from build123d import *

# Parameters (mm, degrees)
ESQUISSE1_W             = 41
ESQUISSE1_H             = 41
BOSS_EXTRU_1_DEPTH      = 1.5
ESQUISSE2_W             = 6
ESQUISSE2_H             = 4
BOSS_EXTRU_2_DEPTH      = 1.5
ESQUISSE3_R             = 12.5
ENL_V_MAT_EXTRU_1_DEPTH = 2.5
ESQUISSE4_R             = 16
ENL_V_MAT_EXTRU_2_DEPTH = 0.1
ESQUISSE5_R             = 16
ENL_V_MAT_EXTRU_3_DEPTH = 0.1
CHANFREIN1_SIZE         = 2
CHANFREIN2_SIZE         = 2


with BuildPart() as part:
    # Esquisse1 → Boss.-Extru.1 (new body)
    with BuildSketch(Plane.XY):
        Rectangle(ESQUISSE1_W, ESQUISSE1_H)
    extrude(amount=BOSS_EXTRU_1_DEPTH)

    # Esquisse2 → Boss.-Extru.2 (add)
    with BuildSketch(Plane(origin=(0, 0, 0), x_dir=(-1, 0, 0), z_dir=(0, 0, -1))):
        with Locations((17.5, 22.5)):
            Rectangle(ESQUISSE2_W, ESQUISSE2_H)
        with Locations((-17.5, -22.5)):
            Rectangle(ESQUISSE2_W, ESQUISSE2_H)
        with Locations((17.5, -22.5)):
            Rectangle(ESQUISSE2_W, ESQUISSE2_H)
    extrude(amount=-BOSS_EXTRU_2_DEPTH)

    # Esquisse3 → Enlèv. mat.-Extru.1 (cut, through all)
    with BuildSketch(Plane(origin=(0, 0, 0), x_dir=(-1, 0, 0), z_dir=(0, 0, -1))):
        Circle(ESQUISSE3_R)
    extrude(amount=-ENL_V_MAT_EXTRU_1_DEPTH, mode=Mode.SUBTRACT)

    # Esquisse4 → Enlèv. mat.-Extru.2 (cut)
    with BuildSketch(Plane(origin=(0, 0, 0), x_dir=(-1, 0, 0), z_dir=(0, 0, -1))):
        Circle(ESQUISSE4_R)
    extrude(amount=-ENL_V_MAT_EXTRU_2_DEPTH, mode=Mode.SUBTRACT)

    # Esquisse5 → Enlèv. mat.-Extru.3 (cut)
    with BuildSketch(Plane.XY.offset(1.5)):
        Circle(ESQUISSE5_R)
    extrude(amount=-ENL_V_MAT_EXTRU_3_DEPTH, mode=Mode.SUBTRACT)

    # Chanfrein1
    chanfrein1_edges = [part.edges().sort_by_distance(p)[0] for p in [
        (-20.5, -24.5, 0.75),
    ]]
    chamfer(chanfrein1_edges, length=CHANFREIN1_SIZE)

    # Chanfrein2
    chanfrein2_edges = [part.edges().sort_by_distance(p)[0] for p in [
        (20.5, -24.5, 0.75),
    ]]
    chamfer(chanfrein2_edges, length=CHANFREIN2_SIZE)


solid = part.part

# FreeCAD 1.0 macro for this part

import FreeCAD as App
import Part
import Sketcher

V = App.Vector


def edges_at(feature, points):
    """Names of the edges that pass closest to the given points."""
    edges = feature.Shape.Edges
    near = lambda p: min(range(len(edges)), key=lambda i: edges[i].distToShape(Part.Vertex(*p))[0])
    return sorted({f"Edge{near(p) + 1}" for p in points})

doc = App.newDocument("Part")
body = doc.addObject("PartDesign::Body", "Body")

# Sketch on XY plane
sketch1 = body.newObject("Sketcher::SketchObject", "Sketch")
sketch1.AttachmentSupport = (doc.getObject("XY_Plane"), [""])
sketch1.MapMode = "FlatFace"
sketch1.addGeometry(Part.LineSegment(V(-20.5, 20.5, 0), V(-20.5, -20.5, 0)), False)
sketch1.addGeometry(Part.LineSegment(V(-20.5, -20.5, 0), V(20.5, -20.5, 0)), False)
sketch1.addGeometry(Part.LineSegment(V(20.5, -20.5, 0), V(20.5, 20.5, 0)), False)
sketch1.addGeometry(Part.LineSegment(V(20.5, 20.5, 0), V(-20.5, 20.5, 0)), False)
sketch1.addConstraint(Sketcher.Constraint("Coincident", 0, 2, 1, 1))
sketch1.addConstraint(Sketcher.Constraint("Coincident", 1, 2, 2, 1))
sketch1.addConstraint(Sketcher.Constraint("Coincident", 2, 2, 3, 1))
sketch1.addConstraint(Sketcher.Constraint("Coincident", 3, 2, 0, 1))
sketch1.addConstraint(Sketcher.Constraint("Vertical", 0))
sketch1.addConstraint(Sketcher.Constraint("Horizontal", 1))
sketch1.addConstraint(Sketcher.Constraint("Vertical", 2))
sketch1.addConstraint(Sketcher.Constraint("Horizontal", 3))
sketch1.addConstraint(Sketcher.Constraint("Symmetric", 0, 2, 2, 2, -1, 1))
sketch1.addConstraint(Sketcher.Constraint("Equal", 3, 0))
sketch1.addConstraint(Sketcher.Constraint("DistanceX", 1, 1, 1, 2, 41.0))
pad1 = body.newObject("PartDesign::Pad", "Pad")
pad1.Profile = sketch1
pad1.Length = 1.5

# Sketch on XY plane
sketch2 = body.newObject("Sketcher::SketchObject", "Sketch001")
sketch2.AttachmentSupport = (doc.getObject("XY_Plane"), [""])
sketch2.MapMode = "FlatFace"
sketch2.addGeometry(Part.LineSegment(V(-14.5, 24.5, 0), V(-14.5, 20.5, 0)), False)
sketch2.addGeometry(Part.LineSegment(V(-14.5, 20.5, 0), V(-20.5, 20.5, 0)), False)
sketch2.addGeometry(Part.LineSegment(V(-20.5, 20.5, 0), V(-20.5, 24.5, 0)), False)
sketch2.addGeometry(Part.LineSegment(V(-20.5, 24.5, 0), V(-14.5, 24.5, 0)), False)
sketch2.addGeometry(Part.LineSegment(V(20.5, -20.5, 0), V(20.5, -24.5, 0)), False)
sketch2.addGeometry(Part.LineSegment(V(20.5, -24.5, 0), V(14.5, -24.5, 0)), False)
sketch2.addGeometry(Part.LineSegment(V(14.5, -24.5, 0), V(14.5, -20.5, 0)), False)
sketch2.addGeometry(Part.LineSegment(V(14.5, -20.5, 0), V(20.5, -20.5, 0)), False)
sketch2.addGeometry(Part.LineSegment(V(-14.5, -20.5, 0), V(-14.5, -24.5, 0)), False)
sketch2.addGeometry(Part.LineSegment(V(-14.5, -24.5, 0), V(-20.5, -24.5, 0)), False)
sketch2.addGeometry(Part.LineSegment(V(-20.5, -24.5, 0), V(-20.5, -20.5, 0)), False)
sketch2.addGeometry(Part.LineSegment(V(-20.5, -20.5, 0), V(-14.5, -20.5, 0)), False)
sketch2.addConstraint(Sketcher.Constraint("Coincident", 0, 2, 1, 1))
sketch2.addConstraint(Sketcher.Constraint("Coincident", 1, 2, 2, 1))
sketch2.addConstraint(Sketcher.Constraint("Coincident", 2, 2, 3, 1))
sketch2.addConstraint(Sketcher.Constraint("Coincident", 3, 2, 0, 1))
sketch2.addConstraint(Sketcher.Constraint("Coincident", 4, 2, 5, 1))
sketch2.addConstraint(Sketcher.Constraint("Coincident", 5, 2, 6, 1))
sketch2.addConstraint(Sketcher.Constraint("Coincident", 6, 2, 7, 1))
sketch2.addConstraint(Sketcher.Constraint("Coincident", 7, 2, 4, 1))
sketch2.addConstraint(Sketcher.Constraint("Coincident", 8, 2, 9, 1))
sketch2.addConstraint(Sketcher.Constraint("Coincident", 9, 2, 10, 1))
sketch2.addConstraint(Sketcher.Constraint("Coincident", 10, 2, 11, 1))
sketch2.addConstraint(Sketcher.Constraint("Coincident", 11, 2, 8, 1))
sketch2.addConstraint(Sketcher.Constraint("Vertical", 0))
sketch2.addConstraint(Sketcher.Constraint("Horizontal", 1))
sketch2.addConstraint(Sketcher.Constraint("Vertical", 2))
sketch2.addConstraint(Sketcher.Constraint("Horizontal", 3))
sketch2.addConstraint(Sketcher.Constraint("Vertical", 4))
sketch2.addConstraint(Sketcher.Constraint("Horizontal", 5))
sketch2.addConstraint(Sketcher.Constraint("Vertical", 6))
sketch2.addConstraint(Sketcher.Constraint("Horizontal", 7))
sketch2.addConstraint(Sketcher.Constraint("Vertical", 8))
sketch2.addConstraint(Sketcher.Constraint("Horizontal", 9))
sketch2.addConstraint(Sketcher.Constraint("Vertical", 10))
sketch2.addConstraint(Sketcher.Constraint("Horizontal", 11))
sketch2.addConstraint(Sketcher.Constraint("Symmetric", 2, 2, 4, 2, -1, 1))
sketch2.addConstraint(Sketcher.Constraint("Symmetric", 0, 2, 6, 2, -1, 1))
sketch2.addConstraint(Sketcher.Constraint("Symmetric", 5, 2, 8, 2, -2))
sketch2.addConstraint(Sketcher.Constraint("Symmetric", 7, 2, 10, 2, -2))
sketch2.addConstraint(Sketcher.Constraint("DistanceX", 1, 2, 1, 1, 6.0))
sketch2.addConstraint(Sketcher.Constraint("DistanceY", 0, 2, 0, 1, 4.0))
sketch2.addConstraint(Sketcher.Constraint("DistanceX", 0, 2, 4, 2, 35.0))
sketch2.addConstraint(Sketcher.Constraint("DistanceY", 4, 2, 0, 2, 45.0))
pad2 = body.newObject("PartDesign::Pad", "Pad001")
pad2.Profile = sketch2
pad2.Length = 1.5

# Sketch on XY plane
sketch3 = body.newObject("Sketcher::SketchObject", "Sketch002")
sketch3.AttachmentSupport = (doc.getObject("XY_Plane"), [""])
sketch3.MapMode = "FlatFace"
sketch3.addGeometry(Part.Circle(V(0, 0, 0), V(0, 0, 1), 12.5), False)
sketch3.addConstraint(Sketcher.Constraint("Coincident", 0, 3, -1, 1))
sketch3.addConstraint(Sketcher.Constraint("Diameter", 0, 25.0))
pocket1 = body.newObject("PartDesign::Pocket", "Pocket")
pocket1.Profile = sketch3
pocket1.Type = "ThroughAll"
pocket1.Reversed = True

# Sketch on XY plane
sketch4 = body.newObject("Sketcher::SketchObject", "Sketch003")
sketch4.AttachmentSupport = (doc.getObject("XY_Plane"), [""])
sketch4.MapMode = "FlatFace"
sketch4.addGeometry(Part.Circle(V(0, 0, 0), V(0, 0, 1), 16), False)
sketch4.addConstraint(Sketcher.Constraint("Coincident", 0, 3, -1, 1))
sketch4.addConstraint(Sketcher.Constraint("Diameter", 0, 32.0))
pocket2 = body.newObject("PartDesign::Pocket", "Pocket001")
pocket2.Profile = sketch4
pocket2.Length = 0.1
pocket2.Reversed = True

# Sketch on XY plane
sketch5 = body.newObject("Sketcher::SketchObject", "Sketch004")
sketch5.AttachmentSupport = (doc.getObject("XY_Plane"), [""])
sketch5.MapMode = "FlatFace"
sketch5.AttachmentOffset = App.Placement(V(0, 0, 1.5), App.Rotation())
sketch5.addGeometry(Part.Circle(V(0, 0, 0), V(0, 0, 1), 16), False)
sketch5.addConstraint(Sketcher.Constraint("Coincident", 0, 3, -1, 1))
sketch5.addConstraint(Sketcher.Constraint("Diameter", 0, 32.0))
pocket3 = body.newObject("PartDesign::Pocket", "Pocket002")
pocket3.Profile = sketch5
pocket3.Length = 0.1
doc.recompute()

chamfer = body.newObject("PartDesign::Chamfer", "Chamfer")
chamfer.Base = (pocket3, edges_at(pocket3, [(-20.5, -24.5, 0.75)]))
chamfer.Size = 2
doc.recompute()

chamfer2 = body.newObject("PartDesign::Chamfer", "Chamfer001")
chamfer2.Base = (chamfer, edges_at(chamfer, [(20.5, -24.5, 0.75)]))
chamfer2.Size = 2

doc.recompute()
